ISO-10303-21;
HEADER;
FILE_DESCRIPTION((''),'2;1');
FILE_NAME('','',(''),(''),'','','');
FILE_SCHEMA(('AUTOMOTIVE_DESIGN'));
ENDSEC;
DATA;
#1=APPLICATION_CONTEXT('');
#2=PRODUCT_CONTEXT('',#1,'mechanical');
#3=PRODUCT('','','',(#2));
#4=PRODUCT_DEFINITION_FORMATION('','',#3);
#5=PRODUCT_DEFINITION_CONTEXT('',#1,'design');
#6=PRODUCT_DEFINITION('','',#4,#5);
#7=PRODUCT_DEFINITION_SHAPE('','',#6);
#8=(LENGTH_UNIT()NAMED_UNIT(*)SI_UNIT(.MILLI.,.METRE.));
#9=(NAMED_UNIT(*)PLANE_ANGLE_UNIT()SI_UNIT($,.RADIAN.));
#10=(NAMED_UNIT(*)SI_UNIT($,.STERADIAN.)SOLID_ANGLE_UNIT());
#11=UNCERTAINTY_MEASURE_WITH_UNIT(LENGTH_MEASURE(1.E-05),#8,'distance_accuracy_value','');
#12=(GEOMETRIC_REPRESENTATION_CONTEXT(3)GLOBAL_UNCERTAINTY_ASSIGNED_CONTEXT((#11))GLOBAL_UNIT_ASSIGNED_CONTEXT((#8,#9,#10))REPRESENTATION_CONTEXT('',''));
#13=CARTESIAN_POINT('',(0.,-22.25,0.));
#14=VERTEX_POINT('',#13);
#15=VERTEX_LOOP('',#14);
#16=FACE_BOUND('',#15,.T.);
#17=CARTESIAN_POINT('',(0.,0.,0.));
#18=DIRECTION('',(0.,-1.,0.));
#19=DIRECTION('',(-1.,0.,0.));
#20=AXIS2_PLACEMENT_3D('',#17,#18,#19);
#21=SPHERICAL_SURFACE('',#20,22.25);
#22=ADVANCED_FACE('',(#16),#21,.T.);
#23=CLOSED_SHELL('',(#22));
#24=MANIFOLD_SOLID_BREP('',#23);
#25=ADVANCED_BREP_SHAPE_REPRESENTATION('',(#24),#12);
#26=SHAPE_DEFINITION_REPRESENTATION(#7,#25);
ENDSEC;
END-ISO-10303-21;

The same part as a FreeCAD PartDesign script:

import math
import FreeCAD as App
import Part
import Sketcher

V = App.Vector

doc = App.newDocument("Part")
params = doc.addObject("Spreadsheet::Sheet", "Params")
for row, (alias, value) in enumerate([
    ("sketch1_radius", "22.25 mm"),
    ("revolution_angle", "360 deg"),
], start=1):
    params.set(f"A{row}", alias)
    params.set(f"B{row}", "=" + value)
    params.setAlias(f"B{row}", alias)

body = doc.addObject("PartDesign::Body", "Body")

sketch1 = body.newObject("Sketcher::SketchObject", "Sketch")
sketch1.AttachmentSupport = (doc.getObject("XY_Plane"), [""])
sketch1.MapMode = "FlatFace"
sketch1.addGeometry(Part.LineSegment(V(0, 22.25, 0), V(0, -22.25, 0)), False)
sketch1.addGeometry(Part.ArcOfCircle(Part.Circle(V(0, 0, 0), V(0, 0, 1), 22.25), math.radians(-90), math.radians(90)), False)
sketch1.addConstraint(Sketcher.Constraint("Coincident", 0, 1, 1, 2))
sketch1.addConstraint(Sketcher.Constraint("Coincident", 1, 1, 0, 2))
sketch1.addConstraint(Sketcher.Constraint("Vertical", 0))
sketch1.addConstraint(Sketcher.Constraint("Coincident", 1, 3, -1, 1))
sketch1.addConstraint(Sketcher.Constraint("PointOnObject", 0, 1, -2))
sketch1.addConstraint(Sketcher.Constraint("Radius", 1, 22.25))
sketch1.setExpression("Constraints[5]", "Params.sketch1_radius")
revolution = body.newObject("PartDesign::Revolution", "Revolution")
revolution.Profile = sketch1
revolution.ReferenceAxis = (sketch1, ["V_Axis"])
revolution.setExpression("Angle", "Params.revolution_angle")

doc.recompute()
